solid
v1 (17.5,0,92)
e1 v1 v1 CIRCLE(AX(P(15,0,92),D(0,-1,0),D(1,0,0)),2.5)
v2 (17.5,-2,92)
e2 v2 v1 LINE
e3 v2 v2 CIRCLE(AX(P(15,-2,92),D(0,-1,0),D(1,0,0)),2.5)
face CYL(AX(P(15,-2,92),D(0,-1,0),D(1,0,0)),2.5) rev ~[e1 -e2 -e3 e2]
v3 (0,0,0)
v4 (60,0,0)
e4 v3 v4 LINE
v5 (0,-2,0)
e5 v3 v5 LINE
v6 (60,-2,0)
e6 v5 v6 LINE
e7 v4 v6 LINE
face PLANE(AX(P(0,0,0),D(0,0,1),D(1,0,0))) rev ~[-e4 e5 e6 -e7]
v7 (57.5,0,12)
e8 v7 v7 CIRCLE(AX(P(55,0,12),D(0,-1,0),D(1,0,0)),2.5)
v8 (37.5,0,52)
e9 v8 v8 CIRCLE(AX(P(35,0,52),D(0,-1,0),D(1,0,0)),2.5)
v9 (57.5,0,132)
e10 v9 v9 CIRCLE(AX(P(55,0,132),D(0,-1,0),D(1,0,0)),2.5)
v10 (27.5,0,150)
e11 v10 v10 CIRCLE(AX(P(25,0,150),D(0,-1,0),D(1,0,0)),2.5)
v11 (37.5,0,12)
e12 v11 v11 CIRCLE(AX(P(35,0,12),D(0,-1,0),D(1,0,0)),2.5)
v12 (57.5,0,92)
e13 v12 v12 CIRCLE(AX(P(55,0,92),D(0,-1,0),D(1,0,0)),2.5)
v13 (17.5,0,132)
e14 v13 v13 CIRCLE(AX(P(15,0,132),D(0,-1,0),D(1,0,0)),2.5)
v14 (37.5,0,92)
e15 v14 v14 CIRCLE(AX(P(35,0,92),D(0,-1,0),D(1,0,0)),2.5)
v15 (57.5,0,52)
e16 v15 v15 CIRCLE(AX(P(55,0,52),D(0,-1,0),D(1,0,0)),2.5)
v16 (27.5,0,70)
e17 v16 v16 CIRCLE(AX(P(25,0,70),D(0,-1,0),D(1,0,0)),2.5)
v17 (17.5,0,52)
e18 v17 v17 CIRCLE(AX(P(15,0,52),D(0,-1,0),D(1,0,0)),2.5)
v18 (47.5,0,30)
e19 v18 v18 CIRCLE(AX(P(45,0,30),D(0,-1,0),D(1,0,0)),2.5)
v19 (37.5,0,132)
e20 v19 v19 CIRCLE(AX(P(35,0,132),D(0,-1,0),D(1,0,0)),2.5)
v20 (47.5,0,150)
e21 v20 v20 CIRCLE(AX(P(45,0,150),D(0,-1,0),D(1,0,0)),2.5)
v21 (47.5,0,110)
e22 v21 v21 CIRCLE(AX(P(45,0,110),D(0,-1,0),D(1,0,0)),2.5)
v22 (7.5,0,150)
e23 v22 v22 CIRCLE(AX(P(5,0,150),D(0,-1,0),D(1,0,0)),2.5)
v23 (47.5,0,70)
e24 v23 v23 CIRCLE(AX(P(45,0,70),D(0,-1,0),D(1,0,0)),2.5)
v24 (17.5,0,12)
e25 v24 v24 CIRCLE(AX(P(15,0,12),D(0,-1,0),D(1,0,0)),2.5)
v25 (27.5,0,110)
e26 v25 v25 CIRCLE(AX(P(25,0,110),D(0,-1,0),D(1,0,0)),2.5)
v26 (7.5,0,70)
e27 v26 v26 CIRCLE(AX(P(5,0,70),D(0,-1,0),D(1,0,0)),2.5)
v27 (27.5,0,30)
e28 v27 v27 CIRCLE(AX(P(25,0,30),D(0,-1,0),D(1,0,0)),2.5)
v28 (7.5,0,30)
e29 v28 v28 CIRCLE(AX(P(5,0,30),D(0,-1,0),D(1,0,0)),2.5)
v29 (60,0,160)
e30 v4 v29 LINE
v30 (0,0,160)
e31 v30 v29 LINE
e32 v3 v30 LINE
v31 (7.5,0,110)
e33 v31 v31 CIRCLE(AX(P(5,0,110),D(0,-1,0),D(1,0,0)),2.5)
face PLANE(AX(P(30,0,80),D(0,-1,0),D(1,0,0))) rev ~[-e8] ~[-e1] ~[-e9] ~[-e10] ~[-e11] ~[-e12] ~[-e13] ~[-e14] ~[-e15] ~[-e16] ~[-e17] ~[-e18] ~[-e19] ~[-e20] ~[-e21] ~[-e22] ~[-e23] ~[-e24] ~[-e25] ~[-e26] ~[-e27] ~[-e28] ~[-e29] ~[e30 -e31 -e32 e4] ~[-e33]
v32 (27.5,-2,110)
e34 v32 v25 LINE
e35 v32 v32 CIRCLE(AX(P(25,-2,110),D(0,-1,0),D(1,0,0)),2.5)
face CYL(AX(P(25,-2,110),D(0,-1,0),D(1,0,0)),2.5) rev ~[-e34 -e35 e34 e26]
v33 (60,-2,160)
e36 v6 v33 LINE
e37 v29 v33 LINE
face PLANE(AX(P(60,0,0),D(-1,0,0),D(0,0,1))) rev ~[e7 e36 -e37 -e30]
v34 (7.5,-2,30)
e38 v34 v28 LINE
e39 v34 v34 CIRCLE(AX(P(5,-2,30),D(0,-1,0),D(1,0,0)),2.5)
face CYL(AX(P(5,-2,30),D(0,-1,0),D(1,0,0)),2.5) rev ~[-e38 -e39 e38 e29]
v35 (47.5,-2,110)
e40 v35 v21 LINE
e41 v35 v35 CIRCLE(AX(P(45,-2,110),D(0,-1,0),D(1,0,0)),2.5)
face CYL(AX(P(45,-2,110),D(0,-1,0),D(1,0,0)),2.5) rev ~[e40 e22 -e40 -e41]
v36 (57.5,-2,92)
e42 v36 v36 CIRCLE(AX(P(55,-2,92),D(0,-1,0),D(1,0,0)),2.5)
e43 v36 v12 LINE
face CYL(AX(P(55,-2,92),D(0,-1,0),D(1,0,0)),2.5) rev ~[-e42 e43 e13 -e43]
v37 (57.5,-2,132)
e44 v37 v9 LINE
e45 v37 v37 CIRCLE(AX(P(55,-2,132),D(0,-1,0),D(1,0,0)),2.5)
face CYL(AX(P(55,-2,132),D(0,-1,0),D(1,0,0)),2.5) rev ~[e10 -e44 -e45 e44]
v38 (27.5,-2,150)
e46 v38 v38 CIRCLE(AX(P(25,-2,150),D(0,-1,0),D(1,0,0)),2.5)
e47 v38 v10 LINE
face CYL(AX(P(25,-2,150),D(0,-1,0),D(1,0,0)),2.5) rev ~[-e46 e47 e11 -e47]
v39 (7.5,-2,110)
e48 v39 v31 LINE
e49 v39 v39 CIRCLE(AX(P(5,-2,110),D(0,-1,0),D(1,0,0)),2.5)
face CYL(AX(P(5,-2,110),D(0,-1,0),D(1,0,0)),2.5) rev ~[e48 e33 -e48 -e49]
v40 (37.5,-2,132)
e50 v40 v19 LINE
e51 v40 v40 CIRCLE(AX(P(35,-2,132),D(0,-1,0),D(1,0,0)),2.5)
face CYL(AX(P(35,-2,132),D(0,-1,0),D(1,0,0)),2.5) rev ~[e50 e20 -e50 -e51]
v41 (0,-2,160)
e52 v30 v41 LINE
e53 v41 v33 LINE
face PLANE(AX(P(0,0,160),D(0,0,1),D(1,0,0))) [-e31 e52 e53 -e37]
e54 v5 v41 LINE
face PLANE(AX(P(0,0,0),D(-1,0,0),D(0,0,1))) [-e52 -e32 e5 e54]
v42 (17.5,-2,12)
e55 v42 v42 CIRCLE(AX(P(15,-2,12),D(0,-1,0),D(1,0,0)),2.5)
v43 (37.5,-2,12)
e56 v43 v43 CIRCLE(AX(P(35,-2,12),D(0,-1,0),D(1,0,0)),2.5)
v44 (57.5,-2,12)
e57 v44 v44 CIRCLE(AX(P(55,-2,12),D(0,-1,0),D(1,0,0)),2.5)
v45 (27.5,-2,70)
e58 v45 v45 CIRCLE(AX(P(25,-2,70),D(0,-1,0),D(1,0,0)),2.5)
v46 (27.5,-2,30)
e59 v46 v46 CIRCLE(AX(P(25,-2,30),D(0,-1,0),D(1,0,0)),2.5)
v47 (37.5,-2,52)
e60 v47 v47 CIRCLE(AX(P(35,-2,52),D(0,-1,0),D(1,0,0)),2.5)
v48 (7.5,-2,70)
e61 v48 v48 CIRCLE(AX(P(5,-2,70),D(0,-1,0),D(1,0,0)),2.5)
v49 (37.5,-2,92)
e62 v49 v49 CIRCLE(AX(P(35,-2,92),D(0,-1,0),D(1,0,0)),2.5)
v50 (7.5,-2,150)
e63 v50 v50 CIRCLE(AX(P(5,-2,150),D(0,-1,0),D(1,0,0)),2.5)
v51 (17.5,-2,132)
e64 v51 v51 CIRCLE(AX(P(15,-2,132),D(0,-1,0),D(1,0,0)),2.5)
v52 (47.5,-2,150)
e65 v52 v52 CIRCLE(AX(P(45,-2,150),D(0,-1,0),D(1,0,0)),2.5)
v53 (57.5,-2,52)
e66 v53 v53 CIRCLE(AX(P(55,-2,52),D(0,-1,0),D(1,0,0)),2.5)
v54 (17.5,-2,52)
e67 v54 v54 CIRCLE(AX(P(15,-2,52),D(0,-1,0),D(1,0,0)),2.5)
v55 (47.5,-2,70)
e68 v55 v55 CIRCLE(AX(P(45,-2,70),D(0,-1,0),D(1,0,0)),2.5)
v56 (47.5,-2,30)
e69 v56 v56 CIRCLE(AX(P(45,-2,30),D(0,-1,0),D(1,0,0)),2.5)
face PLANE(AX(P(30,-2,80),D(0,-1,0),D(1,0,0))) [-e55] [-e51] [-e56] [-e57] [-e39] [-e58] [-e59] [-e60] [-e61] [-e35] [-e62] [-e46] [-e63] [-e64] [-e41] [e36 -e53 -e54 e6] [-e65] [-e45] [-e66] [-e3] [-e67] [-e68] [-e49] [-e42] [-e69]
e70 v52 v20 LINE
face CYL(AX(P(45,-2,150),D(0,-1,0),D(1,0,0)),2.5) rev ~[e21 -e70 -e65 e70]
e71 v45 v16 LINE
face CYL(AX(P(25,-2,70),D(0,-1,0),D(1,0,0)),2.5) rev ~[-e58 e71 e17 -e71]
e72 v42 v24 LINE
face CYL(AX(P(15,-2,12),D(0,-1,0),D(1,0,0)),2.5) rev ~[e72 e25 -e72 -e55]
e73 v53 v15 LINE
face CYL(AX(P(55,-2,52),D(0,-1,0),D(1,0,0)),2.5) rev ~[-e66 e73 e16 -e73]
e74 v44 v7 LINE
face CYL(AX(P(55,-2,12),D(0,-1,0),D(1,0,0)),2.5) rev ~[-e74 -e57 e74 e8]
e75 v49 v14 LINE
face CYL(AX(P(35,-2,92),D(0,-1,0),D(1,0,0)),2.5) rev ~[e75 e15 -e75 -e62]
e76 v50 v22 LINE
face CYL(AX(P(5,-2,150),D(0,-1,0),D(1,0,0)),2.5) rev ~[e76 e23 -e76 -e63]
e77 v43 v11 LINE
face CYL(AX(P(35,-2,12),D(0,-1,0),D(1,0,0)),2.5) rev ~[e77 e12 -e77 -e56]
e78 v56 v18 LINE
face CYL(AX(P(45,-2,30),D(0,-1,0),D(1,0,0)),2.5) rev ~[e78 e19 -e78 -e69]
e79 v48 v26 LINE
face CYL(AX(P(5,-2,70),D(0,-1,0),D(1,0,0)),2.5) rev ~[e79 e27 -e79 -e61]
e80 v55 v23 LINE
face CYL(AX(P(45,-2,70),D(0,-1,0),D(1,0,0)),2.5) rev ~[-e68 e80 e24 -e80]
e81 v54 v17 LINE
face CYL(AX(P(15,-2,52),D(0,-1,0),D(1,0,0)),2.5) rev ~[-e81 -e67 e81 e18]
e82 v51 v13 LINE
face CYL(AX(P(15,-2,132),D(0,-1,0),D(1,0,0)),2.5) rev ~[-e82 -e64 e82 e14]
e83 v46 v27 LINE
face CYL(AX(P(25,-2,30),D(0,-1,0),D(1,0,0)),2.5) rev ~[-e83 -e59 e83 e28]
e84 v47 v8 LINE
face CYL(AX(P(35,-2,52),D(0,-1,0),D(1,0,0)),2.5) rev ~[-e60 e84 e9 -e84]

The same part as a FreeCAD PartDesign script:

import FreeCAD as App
import Part
import Sketcher
from FreeCAD import Vector


def add_polygon(sketch, points):
    """Adds a closed chain of lines whose ends are joined by coincident constraints."""
    first, n = sketch.GeometryCount, len(points)
    for a, b in zip(points, points[1:] + points[:1]):
        sketch.addGeometry(Part.LineSegment(App.Vector(*a, 0), App.Vector(*b, 0)), False)
    for i in range(n):
        sketch.addConstraint(Sketcher.Constraint("Coincident", first + i, 2, first + (i + 1) % n, 1))

doc = App.newDocument("Part")
body = doc.addObject("PartDesign::Body", "Body")

# Sketch on XZ plane
sketch1 = body.newObject("Sketcher::SketchObject", "Sketch")
sketch1.AttachmentSupport = (doc.getObject("XZ_Plane"), [""])
sketch1.MapMode = "FlatFace"
add_polygon(sketch1, [(0, 160), (0, 0), (60, 0), (60, 160)])  # lines 0-3
sketch1.addConstraint([
    Sketcher.Constraint("Vertical", 0),
    Sketcher.Constraint("Horizontal", 1),
    Sketcher.Constraint("Vertical", 2),
    Sketcher.Constraint("Horizontal", 3),
    Sketcher.Constraint("Coincident", 0, 2, -1, 1),
    Sketcher.Constraint("DistanceX", 1, 1, 1, 2, 60.0),
    Sketcher.Constraint("DistanceY", 0, 2, 0, 1, 160.0),
])
pad1 = body.newObject("PartDesign::Pad", "Pad")
pad1.Profile = sketch1
pad1.Length = 2

# Sketch on XZ plane
sketch2 = body.newObject("Sketcher::SketchObject", "Sketch001")
sketch2.AttachmentSupport = (doc.getObject("XZ_Plane"), [""])
sketch2.MapMode = "FlatFace"
sketch2.AttachmentOffset = App.Placement(Vector(0, 0, 2), App.Rotation())
sketch2.addGeometry([
    Part.Circle(Vector(15, 12, 0), Vector(0, 0, 1), 2.5),
    Part.Circle(Vector(5, 30, 0), Vector(0, 0, 1), 2.5),
], False)
sketch2.addConstraint([
    Sketcher.Constraint("Equal", 0, 1),
    Sketcher.Constraint("Diameter", 0, 5.0),
    Sketcher.Constraint("DistanceX", -1, 1, 0, 3, 15.0),
    Sketcher.Constraint("DistanceY", -1, 1, 0, 3, 12.0),
    Sketcher.Constraint("DistanceX", -1, 1, 1, 3, 5.0),
    Sketcher.Constraint("DistanceY", -1, 1, 1, 3, 30.0),
])
pocket1 = body.newObject("PartDesign::Pocket", "Pocket")
pocket1.Profile = sketch2
pocket1.Type = "ThroughAll"

# Sketch on XZ plane
sketch3 = body.newObject("Sketcher::SketchObject", "Sketch002")
sketch3.AttachmentSupport = (doc.getObject("XZ_Plane"), [""])
sketch3.MapMode = "FlatFace"
sketch3.AttachmentOffset = App.Placement(Vector(0, 0, 2), App.Rotation())
sketch3.addGeometry([
    Part.Circle(Vector(35, 12, 0), Vector(0, 0, 1), 2.5),
    Part.Circle(Vector(25, 30, 0), Vector(0, 0, 1), 2.5),
], False)
sketch3.addConstraint([
    Sketcher.Constraint("Equal", 0, 1),
    Sketcher.Constraint("Diameter", 0, 5.0),
    Sketcher.Constraint("DistanceX", -1, 1, 0, 3, 35.0),
    Sketcher.Constraint("DistanceY", -1, 1, 0, 3, 12.0),
    Sketcher.Constraint("DistanceX", -1, 1, 1, 3, 25.0),
    Sketcher.Constraint("DistanceY", -1, 1, 1, 3, 30.0),
])
pocket2 = body.newObject("PartDesign::Pocket", "Pocket001")
pocket2.Profile = sketch3
pocket2.Type = "ThroughAll"

# Sketch on XZ plane
sketch4 = body.newObject("Sketcher::SketchObject", "Sketch003")
sketch4.AttachmentSupport = (doc.getObject("XZ_Plane"), [""])
sketch4.MapMode = "FlatFace"
sketch4.AttachmentOffset = App.Placement(Vector(0, 0, 2), App.Rotation())
sketch4.addGeometry([
    Part.Circle(Vector(55, 12, 0), Vector(0, 0, 1), 2.5),
    Part.Circle(Vector(45, 30, 0), Vector(0, 0, 1), 2.5),
], False)
sketch4.addConstraint([
    Sketcher.Constraint("Equal", 0, 1),
    Sketcher.Constraint("Diameter", 0, 5.0),
    Sketcher.Constraint("DistanceX", -1, 1, 0, 3, 55.0),
    Sketcher.Constraint("DistanceY", -1, 1, 0, 3, 12.0),
    Sketcher.Constraint("DistanceX", -1, 1, 1, 3, 45.0),
    Sketcher.Constraint("DistanceY", -1, 1, 1, 3, 30.0),
])
pocket3 = body.newObject("PartDesign::Pocket", "Pocket002")
pocket3.Profile = sketch4
pocket3.Type = "ThroughAll"
doc.recompute()

linearpattern = body.newObject("PartDesign::LinearPattern", "LinearPattern")
linearpattern.Originals = [pocket1, pocket2, pocket3]
linearpattern.Direction = (doc.getObject("Z_Axis"), [""])
linearpattern.Mode = "offset"
linearpattern.Offset = 40
linearpattern.Occurrences = 4
body.Tip = linearpattern

doc.recompute()
